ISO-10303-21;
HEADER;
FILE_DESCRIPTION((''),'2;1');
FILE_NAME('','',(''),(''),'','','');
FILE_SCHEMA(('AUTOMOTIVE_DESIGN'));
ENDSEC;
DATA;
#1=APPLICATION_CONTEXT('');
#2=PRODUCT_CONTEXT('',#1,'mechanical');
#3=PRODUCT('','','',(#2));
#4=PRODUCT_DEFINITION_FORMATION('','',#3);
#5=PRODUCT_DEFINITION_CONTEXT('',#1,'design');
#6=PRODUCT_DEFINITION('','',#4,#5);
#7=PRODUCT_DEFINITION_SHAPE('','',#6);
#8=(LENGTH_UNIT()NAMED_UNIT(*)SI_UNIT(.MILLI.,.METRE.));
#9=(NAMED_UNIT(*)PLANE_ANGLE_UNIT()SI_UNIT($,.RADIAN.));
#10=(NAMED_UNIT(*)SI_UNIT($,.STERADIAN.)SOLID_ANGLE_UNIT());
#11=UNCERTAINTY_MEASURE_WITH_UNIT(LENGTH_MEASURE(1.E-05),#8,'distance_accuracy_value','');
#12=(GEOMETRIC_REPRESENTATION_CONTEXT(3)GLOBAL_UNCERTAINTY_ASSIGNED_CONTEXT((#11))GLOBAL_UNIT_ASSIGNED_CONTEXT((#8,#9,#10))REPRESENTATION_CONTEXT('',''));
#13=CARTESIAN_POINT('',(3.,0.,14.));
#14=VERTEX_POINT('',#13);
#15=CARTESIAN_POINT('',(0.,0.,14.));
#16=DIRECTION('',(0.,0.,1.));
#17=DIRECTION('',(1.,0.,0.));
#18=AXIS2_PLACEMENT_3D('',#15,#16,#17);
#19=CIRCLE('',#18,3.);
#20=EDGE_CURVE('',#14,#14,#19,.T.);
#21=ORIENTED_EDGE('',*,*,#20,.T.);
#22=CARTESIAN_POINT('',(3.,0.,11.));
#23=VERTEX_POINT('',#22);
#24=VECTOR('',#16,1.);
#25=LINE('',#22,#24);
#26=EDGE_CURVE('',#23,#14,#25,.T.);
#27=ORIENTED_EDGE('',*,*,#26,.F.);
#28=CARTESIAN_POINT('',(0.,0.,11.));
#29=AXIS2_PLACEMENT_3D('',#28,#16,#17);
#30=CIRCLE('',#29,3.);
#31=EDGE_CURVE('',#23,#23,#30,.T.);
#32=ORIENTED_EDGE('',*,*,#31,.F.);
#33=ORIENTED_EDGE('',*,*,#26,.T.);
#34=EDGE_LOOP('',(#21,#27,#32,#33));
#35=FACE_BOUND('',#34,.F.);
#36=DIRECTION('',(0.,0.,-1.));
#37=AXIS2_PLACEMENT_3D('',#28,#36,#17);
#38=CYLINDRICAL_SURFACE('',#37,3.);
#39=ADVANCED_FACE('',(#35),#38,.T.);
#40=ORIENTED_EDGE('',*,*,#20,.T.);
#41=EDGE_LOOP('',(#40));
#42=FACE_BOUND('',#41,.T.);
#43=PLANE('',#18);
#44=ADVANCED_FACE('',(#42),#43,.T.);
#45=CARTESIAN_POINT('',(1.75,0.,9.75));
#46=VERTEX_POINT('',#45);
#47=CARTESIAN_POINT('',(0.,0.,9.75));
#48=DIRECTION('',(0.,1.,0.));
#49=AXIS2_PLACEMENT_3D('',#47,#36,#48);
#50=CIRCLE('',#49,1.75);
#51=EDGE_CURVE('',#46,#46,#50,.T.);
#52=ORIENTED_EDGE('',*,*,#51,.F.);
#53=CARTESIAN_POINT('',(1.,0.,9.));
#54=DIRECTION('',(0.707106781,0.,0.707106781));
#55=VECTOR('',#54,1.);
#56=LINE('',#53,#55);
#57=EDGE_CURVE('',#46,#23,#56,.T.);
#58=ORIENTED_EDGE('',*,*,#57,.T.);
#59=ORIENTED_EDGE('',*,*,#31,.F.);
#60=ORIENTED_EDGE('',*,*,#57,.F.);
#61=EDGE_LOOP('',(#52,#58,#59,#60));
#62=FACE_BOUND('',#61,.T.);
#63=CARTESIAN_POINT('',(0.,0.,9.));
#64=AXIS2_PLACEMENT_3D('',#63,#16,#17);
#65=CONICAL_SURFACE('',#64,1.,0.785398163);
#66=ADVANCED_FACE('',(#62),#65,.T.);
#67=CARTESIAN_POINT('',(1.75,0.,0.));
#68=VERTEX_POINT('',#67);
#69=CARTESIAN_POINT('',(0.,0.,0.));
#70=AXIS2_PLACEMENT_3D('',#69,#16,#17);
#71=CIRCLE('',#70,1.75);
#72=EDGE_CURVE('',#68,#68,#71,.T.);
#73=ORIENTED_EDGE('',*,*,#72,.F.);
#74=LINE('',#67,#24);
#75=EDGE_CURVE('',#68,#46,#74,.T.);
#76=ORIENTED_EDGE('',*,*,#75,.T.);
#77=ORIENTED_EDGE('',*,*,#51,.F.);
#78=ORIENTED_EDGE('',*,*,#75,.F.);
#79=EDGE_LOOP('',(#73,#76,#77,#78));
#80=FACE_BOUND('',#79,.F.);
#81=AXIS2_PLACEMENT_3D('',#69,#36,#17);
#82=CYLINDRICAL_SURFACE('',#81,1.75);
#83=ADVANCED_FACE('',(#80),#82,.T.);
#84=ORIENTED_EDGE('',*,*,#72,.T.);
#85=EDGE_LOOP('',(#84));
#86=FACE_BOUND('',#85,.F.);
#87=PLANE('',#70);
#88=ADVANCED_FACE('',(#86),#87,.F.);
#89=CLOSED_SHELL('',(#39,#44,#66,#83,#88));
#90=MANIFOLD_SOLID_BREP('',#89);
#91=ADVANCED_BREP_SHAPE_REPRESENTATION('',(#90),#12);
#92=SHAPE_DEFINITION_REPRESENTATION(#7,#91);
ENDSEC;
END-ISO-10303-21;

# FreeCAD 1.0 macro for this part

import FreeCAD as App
import Part
import Sketcher
from FreeCAD import Vector


def add_polygon(sketch, points):
    """Adds a closed chain of lines whose ends are joined by coincident constraints."""
    first, n = sketch.GeometryCount, len(points)
    for a, b in zip(points, points[1:] + points[:1]):
        sketch.addGeometry(Part.LineSegment(App.Vector(*a, 0), App.Vector(*b, 0)), False)
    for i in range(n):
        sketch.addConstraint(Sketcher.Constraint("Coincident", first + i, 2, first + (i + 1) % n, 1))

doc = App.newDocument("Part")
params = doc.addObject("Spreadsheet::Sheet", "Params")
for row, (alias, value) in enumerate([
    ("sketch1_width", "1 mm"),
    ("sketch1_width2", "3 mm"),
    ("sketch1_height", "2 mm"),
    ("revolution_angle", "360 deg"),
    ("sketch2_diameter", "3.5 mm"),
    ("pad1_length", "10 mm"),
    ("sketch3_diameter", "6 mm"),
    ("pad2_length", "3 mm"),
], start=1):
    params.set(f"A{row}", alias)
    params.set(f"B{row}", "=" + value)
    params.setAlias(f"B{row}", alias)

body = doc.addObject("PartDesign::Body", "Body")

# Sketch on XZ plane
sketch1 = body.newObject("Sketcher::SketchObject", "Sketch")
sketch1.AttachmentSupport = (doc.getObject("XZ_Plane"), [""])
sketch1.MapMode = "FlatFace"
add_polygon(sketch1, [(0, 9), (1, 9), (3, 11), (0, 11)])  # lines 0-3
sketch1.addConstraint([
    Sketcher.Constraint("Horizontal", 0),
    Sketcher.Constraint("Horizontal", 2),
    Sketcher.Constraint("Vertical", 3),
    Sketcher.Constraint("PointOnObject", 2, 2, -2),
    Sketcher.Constraint("DistanceX", 0, 1, 0, 2, 1.0),
    Sketcher.Constraint("DistanceX", 2, 2, 2, 1, 3.0),
    Sketcher.Constraint("DistanceY", 3, 2, 3, 1, 2.0),
    Sketcher.Constraint("DistanceY", -1, 1, 0, 2, 9.0),
])
sketch1.setExpression("Constraints[8]", "Params.sketch1_width")
sketch1.setExpression("Constraints[9]", "Params.sketch1_width2")
sketch1.setExpression("Constraints[10]", "Params.sketch1_height")
revolution = body.newObject("PartDesign::Revolution", "Revolution")
revolution.Profile = sketch1
revolution.ReferenceAxis = (sketch1, ["V_Axis"])
revolution.setExpression("Angle", "Params.revolution_angle")
body2 = doc.addObject("PartDesign::Body", "Body001")

# Sketch on XY plane
sketch2 = body2.newObject("Sketcher::SketchObject", "Sketch001")
sketch2.AttachmentSupport = (doc.getObject("XY_Plane001"), [""])
sketch2.MapMode = "FlatFace"
sketch2.addGeometry(Part.Circle(Vector(0, 0, 0), Vector(0, 0, 1), 1.8), False)
sketch2.addConstraint([
    Sketcher.Constraint("Coincident", 0, 3, -1, 1),
    Sketcher.Constraint("Diameter", 0, 3.5),
])
sketch2.setExpression("Constraints[1]", "Params.sketch2_diameter")
pad1 = body2.newObject("PartDesign::Pad", "Pad")
pad1.Profile = sketch2
pad1.setExpression("Length", "Params.pad1_length")
body3 = doc.addObject("PartDesign::Body", "Body002")

# Sketch on XY plane
sketch3 = body3.newObject("Sketcher::SketchObject", "Sketch002")
sketch3.AttachmentSupport = (doc.getObject("XY_Plane002"), [""])
sketch3.MapMode = "FlatFace"
sketch3.AttachmentOffset = App.Placement(Vector(0, 0, 11), App.Rotation())
sketch3.addGeometry(Part.Circle(Vector(0, 0, 0), Vector(0, 0, 1), 3), False)
sketch3.addConstraint([
    Sketcher.Constraint("Coincident", 0, 3, -1, 1),
    Sketcher.Constraint("Diameter", 0, 6.0),
])
sketch3.setExpression("Constraints[1]", "Params.sketch3_diameter")
pad2 = body3.newObject("PartDesign::Pad", "Pad001")
pad2.Profile = sketch3
pad2.setExpression("Length", "Params.pad2_length")
doc.recompute()

boolean = body3.newObject("PartDesign::Boolean", "Boolean")
boolean.Type = "Fuse"
boolean.addObjects([body])
doc.recompute()

boolean2 = body3.newObject("PartDesign::Boolean", "Boolean001")
boolean2.Type = "Fuse"
boolean2.addObjects([body2])

doc.recompute()
